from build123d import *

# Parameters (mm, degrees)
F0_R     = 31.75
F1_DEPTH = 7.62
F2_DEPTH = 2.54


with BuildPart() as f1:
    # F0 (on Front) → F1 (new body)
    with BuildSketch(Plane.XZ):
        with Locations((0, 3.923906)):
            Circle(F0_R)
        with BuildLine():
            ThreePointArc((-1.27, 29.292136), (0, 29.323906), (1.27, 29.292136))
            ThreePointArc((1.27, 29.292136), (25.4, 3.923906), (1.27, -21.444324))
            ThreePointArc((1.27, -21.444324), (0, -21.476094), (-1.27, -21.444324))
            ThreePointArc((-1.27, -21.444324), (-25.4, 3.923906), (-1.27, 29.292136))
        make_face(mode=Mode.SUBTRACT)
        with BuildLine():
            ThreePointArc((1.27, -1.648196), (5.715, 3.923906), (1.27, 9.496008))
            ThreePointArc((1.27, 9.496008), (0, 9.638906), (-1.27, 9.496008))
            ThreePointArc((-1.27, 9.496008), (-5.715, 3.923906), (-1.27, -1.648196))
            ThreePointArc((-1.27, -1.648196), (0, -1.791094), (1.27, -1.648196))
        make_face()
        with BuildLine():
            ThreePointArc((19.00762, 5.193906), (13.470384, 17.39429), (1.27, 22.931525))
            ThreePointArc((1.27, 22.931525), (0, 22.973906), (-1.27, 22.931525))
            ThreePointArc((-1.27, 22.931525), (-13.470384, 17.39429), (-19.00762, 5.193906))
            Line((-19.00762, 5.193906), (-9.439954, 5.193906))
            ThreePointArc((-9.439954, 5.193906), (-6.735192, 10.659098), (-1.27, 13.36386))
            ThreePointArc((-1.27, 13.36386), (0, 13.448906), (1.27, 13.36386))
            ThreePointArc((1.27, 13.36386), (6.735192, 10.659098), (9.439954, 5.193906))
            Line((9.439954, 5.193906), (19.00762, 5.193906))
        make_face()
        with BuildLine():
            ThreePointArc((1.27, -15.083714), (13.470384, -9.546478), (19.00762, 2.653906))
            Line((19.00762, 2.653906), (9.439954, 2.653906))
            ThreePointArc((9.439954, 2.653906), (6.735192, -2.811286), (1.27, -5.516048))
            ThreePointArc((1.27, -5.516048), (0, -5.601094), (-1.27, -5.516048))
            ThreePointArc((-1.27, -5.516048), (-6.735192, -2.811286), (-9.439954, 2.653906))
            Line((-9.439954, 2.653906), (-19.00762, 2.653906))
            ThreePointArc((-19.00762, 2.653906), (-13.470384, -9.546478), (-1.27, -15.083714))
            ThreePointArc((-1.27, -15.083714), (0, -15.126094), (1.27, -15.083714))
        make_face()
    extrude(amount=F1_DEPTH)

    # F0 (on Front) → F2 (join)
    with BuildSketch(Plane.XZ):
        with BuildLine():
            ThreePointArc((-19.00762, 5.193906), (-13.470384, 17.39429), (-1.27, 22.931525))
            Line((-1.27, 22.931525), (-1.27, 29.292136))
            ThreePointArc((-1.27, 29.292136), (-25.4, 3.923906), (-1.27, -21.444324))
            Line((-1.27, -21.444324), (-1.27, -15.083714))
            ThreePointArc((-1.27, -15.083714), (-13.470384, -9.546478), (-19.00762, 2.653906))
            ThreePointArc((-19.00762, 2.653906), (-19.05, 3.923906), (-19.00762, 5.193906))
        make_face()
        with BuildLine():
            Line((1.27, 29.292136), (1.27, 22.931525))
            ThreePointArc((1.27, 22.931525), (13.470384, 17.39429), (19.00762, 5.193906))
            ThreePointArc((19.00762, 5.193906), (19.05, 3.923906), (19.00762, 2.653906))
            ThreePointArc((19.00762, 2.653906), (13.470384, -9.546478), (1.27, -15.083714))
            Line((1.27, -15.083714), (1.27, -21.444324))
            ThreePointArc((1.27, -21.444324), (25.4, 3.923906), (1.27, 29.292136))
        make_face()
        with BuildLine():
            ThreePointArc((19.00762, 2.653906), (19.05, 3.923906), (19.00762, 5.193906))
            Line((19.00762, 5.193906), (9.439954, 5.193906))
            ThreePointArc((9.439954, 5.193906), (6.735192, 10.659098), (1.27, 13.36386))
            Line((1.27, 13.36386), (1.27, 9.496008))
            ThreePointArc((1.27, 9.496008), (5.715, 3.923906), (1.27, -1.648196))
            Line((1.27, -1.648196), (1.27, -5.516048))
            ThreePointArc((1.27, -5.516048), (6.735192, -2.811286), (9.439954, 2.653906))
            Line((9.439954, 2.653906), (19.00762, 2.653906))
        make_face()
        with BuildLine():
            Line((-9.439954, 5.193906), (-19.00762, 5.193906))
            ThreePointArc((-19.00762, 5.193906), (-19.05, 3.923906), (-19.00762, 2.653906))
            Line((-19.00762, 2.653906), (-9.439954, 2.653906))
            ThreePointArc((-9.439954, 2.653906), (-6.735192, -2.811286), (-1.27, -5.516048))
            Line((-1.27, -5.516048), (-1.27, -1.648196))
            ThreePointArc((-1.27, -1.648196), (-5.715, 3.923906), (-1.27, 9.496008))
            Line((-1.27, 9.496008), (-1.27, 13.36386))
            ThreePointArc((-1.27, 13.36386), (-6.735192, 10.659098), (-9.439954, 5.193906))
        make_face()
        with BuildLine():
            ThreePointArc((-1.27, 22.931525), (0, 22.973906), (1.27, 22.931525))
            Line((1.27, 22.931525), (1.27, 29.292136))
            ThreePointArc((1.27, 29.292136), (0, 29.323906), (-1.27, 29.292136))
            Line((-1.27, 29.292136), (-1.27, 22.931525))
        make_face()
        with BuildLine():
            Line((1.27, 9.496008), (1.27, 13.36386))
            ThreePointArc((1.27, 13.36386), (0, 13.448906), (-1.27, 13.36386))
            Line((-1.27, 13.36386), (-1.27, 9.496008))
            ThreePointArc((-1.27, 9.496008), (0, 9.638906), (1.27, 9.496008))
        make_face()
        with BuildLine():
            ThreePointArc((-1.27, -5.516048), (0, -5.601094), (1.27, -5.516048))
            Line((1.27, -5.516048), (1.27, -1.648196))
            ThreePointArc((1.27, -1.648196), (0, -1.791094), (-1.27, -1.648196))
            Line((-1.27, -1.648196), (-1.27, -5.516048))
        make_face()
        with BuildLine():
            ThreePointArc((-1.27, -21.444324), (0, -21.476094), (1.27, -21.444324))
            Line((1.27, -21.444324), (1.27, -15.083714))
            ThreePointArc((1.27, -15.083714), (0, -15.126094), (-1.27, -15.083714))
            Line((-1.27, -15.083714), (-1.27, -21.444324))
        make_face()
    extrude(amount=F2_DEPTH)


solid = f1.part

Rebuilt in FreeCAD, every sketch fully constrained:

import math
import FreeCAD as App
import Part
import Sketcher

V = App.Vector
Q = App.Units.Quantity

doc = App.newDocument("Part")
body = doc.addObject("PartDesign::Body", "Body")
body.AllowCompound = True

# Sketch on XZ plane
sketch1 = body.newObject("Sketcher::SketchObject", "Sketch")
sketch1.AttachmentSupport = (doc.getObject("XZ_Plane"), [""])
sketch1.MapMode = "FlatFace"
sketch1.addGeometry(Part.Circle(V(0, 3.923906, 0), V(0, 0, 1), 31.75), False)
sketch1.addGeometry(Part.ArcOfCircle(Part.Circle(V(0, 3.923906, 0), V(0, 0, 1), 25.4), math.radians(92.865984), math.radians(267.134016)), False)
sketch1.addGeometry(Part.ArcOfCircle(Part.Circle(V(0, 3.924011, 0), V(0, 0, 1), 25.399895), math.radians(87.134004), math.radians(92.865996)), False)
sketch1.addGeometry(Part.ArcOfCircle(Part.Circle(V(0, 3.923906, 0), V(0, 0, 1), 25.4), math.radians(-87.134016), math.radians(87.134016)), False)
sketch1.addGeometry(Part.ArcOfCircle(Part.Circle(V(0, 3.923801, 0), V(0, 0, 1), 25.399895), math.radians(-92.865996), math.radians(-87.134004)), False)
sketch1.addGeometry(Part.ArcOfCircle(Part.Circle(V(0, 3.923906, 0), V(0, 0, 1), 5.715), math.radians(-77.160415), math.radians(77.160415)), False)
sketch1.addGeometry(Part.ArcOfCircle(Part.Circle(V(0, 3.923921, 0), V(0, 0, 1), 5.714985), math.radians(77.160377), math.radians(102.839623)), False)
sketch1.addGeometry(Part.ArcOfCircle(Part.Circle(V(0, 3.923906, 0), V(0, 0, 1), 5.715), math.radians(102.839585), math.radians(257.160415)), False)
sketch1.addGeometry(Part.ArcOfCircle(Part.Circle(V(0, 3.923891, 0), V(0, 0, 1), 5.714985), math.radians(-102.839623), math.radians(-77.160377)), False)
sketch1.addGeometry(Part.ArcOfCircle(Part.Circle(V(0, 3.923905, 0), V(0, 0, 1), 19.050001), math.radians(3.822557), math.radians(86.177446)), False)
sketch1.addGeometry(Part.ArcOfCircle(Part.Circle(V(0, 3.924141, 0), V(0, 0, 1), 19.049765), math.radians(86.177399), math.radians(93.822601)), False)
sketch1.addGeometry(Part.ArcOfCircle(Part.Circle(V(0, 3.923905, 0), V(0, 0, 1), 19.050001), math.radians(93.822554), math.radians(176.177443)), False)
sketch1.addGeometry(Part.LineSegment(V(-19.00762, 5.193906, 0), V(-9.439954, 5.193906, 0)), False)
sketch1.addGeometry(Part.ArcOfCircle(Part.Circle(V(0.000002, 3.923904, 0), V(0, 0, 1), 9.525002), math.radians(97.662264), math.radians(172.337736)), False)
sketch1.addGeometry(Part.ArcOfCircle(Part.Circle(V(0, 3.923868, 0), V(0, 0, 1), 9.525038), math.radians(82.337775), math.radians(97.662225)), False)
sketch1.addGeometry(Part.ArcOfCircle(Part.Circle(V(-0.000002, 3.923904, 0), V(0, 0, 1), 9.525002), math.radians(7.662264), math.radians(82.337736)), False)
sketch1.addGeometry(Part.LineSegment(V(9.439954, 5.193906, 0), V(19.00762, 5.193906, 0)), False)
sketch1.addGeometry(Part.ArcOfCircle(Part.Circle(V(-0.000002, 3.923908, 0), V(0, 0, 1), 19.050003), math.radians(-86.177441), math.radians(-3.822559)), False)
sketch1.addGeometry(Part.LineSegment(V(19.00762, 2.653906, 0), V(9.439954, 2.653906, 0)), False)
sketch1.addGeometry(Part.ArcOfCircle(Part.Circle(V(-0.000002, 3.923908, 0), V(0, 0, 1), 9.525002), math.radians(-82.337736), math.radians(-7.662264)), False)
sketch1.addGeometry(Part.ArcOfCircle(Part.Circle(V(0, 3.923944, 0), V(0, 0, 1), 9.525038), math.radians(-97.662225), math.radians(-82.337775)), False)
sketch1.addGeometry(Part.ArcOfCircle(Part.Circle(V(0.000002, 3.923908, 0), V(0, 0, 1), 9.525002), math.radians(-172.337736), math.radians(-97.662264)), False)
sketch1.addGeometry(Part.LineSegment(V(-9.439954, 2.653906, 0), V(-19.00762, 2.653906, 0)), False)
sketch1.addGeometry(Part.ArcOfCircle(Part.Circle(V(0.000002, 3.923908, 0), V(0, 0, 1), 19.050003), math.radians(-176.177441), math.radians(-93.822559)), False)
sketch1.addGeometry(Part.ArcOfCircle(Part.Circle(V(0, 3.924119, 0), V(0, 0, 1), 19.050213), math.radians(-93.822511), math.radians(-86.177489)), False)
sketch1.addConstraint(Sketcher.Constraint("Coincident", 1, 1, 2, 2))
sketch1.addConstraint(Sketcher.Constraint("Coincident", 2, 1, 3, 2))
sketch1.addConstraint(Sketcher.Constraint("Coincident", 3, 1, 4, 2))
sketch1.addConstraint(Sketcher.Constraint("Coincident", 4, 1, 1, 2))
sketch1.addConstraint(Sketcher.Constraint("Coincident", 5, 2, 6, 1))
sketch1.addConstraint(Sketcher.Constraint("Coincident", 6, 2, 7, 1))
sketch1.addConstraint(Sketcher.Constraint("Coincident", 7, 2, 8, 1))
sketch1.addConstraint(Sketcher.Constraint("Coincident", 8, 2, 5, 1))
sketch1.addConstraint(Sketcher.Constraint("Coincident", 9, 2, 10, 1))
sketch1.addConstraint(Sketcher.Constraint("Coincident", 10, 2, 11, 1))
sketch1.addConstraint(Sketcher.Constraint("Coincident", 11, 2, 12, 1))
sketch1.addConstraint(Sketcher.Constraint("Coincident", 12, 2, 13, 2))
sketch1.addConstraint(Sketcher.Constraint("Coincident", 13, 1, 14, 2))
sketch1.addConstraint(Sketcher.Constraint("Coincident", 14, 1, 15, 2))
sketch1.addConstraint(Sketcher.Constraint("Coincident", 15, 1, 16, 1))
sketch1.addConstraint(Sketcher.Constraint("Coincident", 16, 2, 9, 1))
sketch1.addConstraint(Sketcher.Constraint("Coincident", 17, 2, 18, 1))
sketch1.addConstraint(Sketcher.Constraint("Coincident", 18, 2, 19, 2))
sketch1.addConstraint(Sketcher.Constraint("Coincident", 19, 1, 20, 2))
sketch1.addConstraint(Sketcher.Constraint("Coincident", 20, 1, 21, 2))
sketch1.addConstraint(Sketcher.Constraint("Coincident", 21, 1, 22, 1))
sketch1.addConstraint(Sketcher.Constraint("Coincident", 22, 2, 23, 1))
sketch1.addConstraint(Sketcher.Constraint("Coincident", 23, 2, 24, 1))
sketch1.addConstraint(Sketcher.Constraint("Coincident", 24, 2, 17, 1))
sketch1.addConstraint(Sketcher.Constraint("Horizontal", 12))
sketch1.addConstraint(Sketcher.Constraint("Horizontal", 16))
sketch1.addConstraint(Sketcher.Constraint("Horizontal", 18))
sketch1.addConstraint(Sketcher.Constraint("Horizontal", 22))
sketch1.addConstraint(Sketcher.Constraint("Coincident", 1, 3, 0, 3))
sketch1.addConstraint(Sketcher.Constraint("Coincident", 3, 3, 0, 3))
sketch1.addConstraint(Sketcher.Constraint("Coincident", 5, 3, 0, 3))
sketch1.addConstraint(Sketcher.Constraint("Coincident", 7, 3, 0, 3))
sketch1.addConstraint(Sketcher.Constraint("Coincident", 9, 3, 0, 3))
sketch1.addConstraint(Sketcher.Constraint("Coincident", 11, 3, 0, 3))
sketch1.addConstraint(Sketcher.Constraint("Coincident", 13, 3, 0, 3))
sketch1.addConstraint(Sketcher.Constraint("Coincident", 15, 3, 0, 3))
sketch1.addConstraint(Sketcher.Constraint("Coincident", 17, 3, 0, 3))
sketch1.addConstraint(Sketcher.Constraint("Coincident", 19, 3, 0, 3))
sketch1.addConstraint(Sketcher.Constraint("Coincident", 21, 3, 0, 3))
sketch1.addConstraint(Sketcher.Constraint("Coincident", 23, 3, 0, 3))
sketch1.addConstraint(Sketcher.Constraint("PointOnObject", 0, 3, -2))
sketch1.addConstraint(Sketcher.Constraint("PointOnObject", 2, 3, -2))
sketch1.addConstraint(Sketcher.Constraint("PointOnObject", 6, 3, -2))
sketch1.addConstraint(Sketcher.Constraint("PointOnObject", 10, 3, -2))
sketch1.addConstraint(Sketcher.Constraint("PointOnObject", 14, 3, -2))
sketch1.addConstraint(Sketcher.Constraint("PointOnObject", 20, 3, -2))
sketch1.addConstraint(Sketcher.Constraint("PointOnObject", 24, 3, -2))
sketch1.addConstraint(Sketcher.Constraint("Radius", 1, Q("1 in")))
sketch1.addConstraint(Sketcher.Constraint("Diameter", 0, Q("2.5 in")))
sketch1.addConstraint(Sketcher.Constraint("Radius", 9, Q("0.75 in")))
sketch1.addConstraint(Sketcher.Constraint("Radius", 17, Q("0.7500001 in")))
sketch1.addConstraint(Sketcher.Constraint("Radius", 5, Q("0.225 in")))
sketch1.addConstraint(Sketcher.Constraint("Radius", 13, Q("0.3750001 in")))
sketch1.addConstraint(Sketcher.Constraint("Radius", 19, Q("0.3750001 in")))
sketch1.addConstraint(Sketcher.Constraint("DistanceX", 1, 1, 2, 1, Q("0.1 in")))
sketch1.addConstraint(Sketcher.Constraint("DistanceX", 4, 1, 3, 1, Q("0.1 in")))
sketch1.addConstraint(Sketcher.Constraint("DistanceX", 6, 2, 5, 2, Q("0.1 in")))
sketch1.addConstraint(Sketcher.Constraint("DistanceX", 7, 2, 8, 2, Q("0.1 in")))
sketch1.addConstraint(Sketcher.Constraint("DistanceX", 1, 1, 9, 2, Q("0.1 in")))
sketch1.addConstraint(Sketcher.Constraint("DistanceX", 6, 2, 9, 2, Q("0.1 in")))
sketch1.addConstraint(Sketcher.Constraint("DistanceX", 10, 2, 9, 2, Q("0.1 in")))
sketch1.addConstraint(Sketcher.Constraint("DistanceX", 13, 1, 5, 2, Q("0.1 in")))
sketch1.addConstraint(Sketcher.Constraint("DistanceX", 13, 1, 14, 1, Q("0.1 in")))
sketch1.addConstraint(Sketcher.Constraint("DistanceY", 17, 2, 16, 2, Q("0.1 in")))
sketch1.addConstraint(Sketcher.Constraint("DistanceX", 7, 2, 19, 1, Q("0.1 in")))
sketch1.addConstraint(Sketcher.Constraint("DistanceX", 20, 1, 19, 1, Q("0.1 in")))
sketch1.addConstraint(Sketcher.Constraint("DistanceY", 21, 1, 12, 2, Q("0.1 in")))
sketch1.addConstraint(Sketcher.Constraint("DistanceX", 23, 2, 3, 1, Q("0.1 in")))
sketch1.addConstraint(Sketcher.Constraint("DistanceX", 23, 2, 19, 1, Q("0.1 in")))
sketch1.addConstraint(Sketcher.Constraint("DistanceX", 23, 2, 24, 2, Q("0.1 in")))
sketch1.addConstraint(Sketcher.Constraint("DistanceX", 1, 1, -1, 1, Q("0.05 in")))
sketch1.addConstraint(Sketcher.Constraint("DistanceX", -1, 1, 3, 1, Q("0.05 in")))
sketch1.addConstraint(Sketcher.Constraint("Radius", 14, 9.525038))
sketch1.addConstraint(Sketcher.Constraint("Radius", 20, 9.525038))
sketch1.addConstraint(Sketcher.Constraint("Radius", 2, 25.399895))
sketch1.addConstraint(Sketcher.Constraint("Radius", 4, 25.399895))
sketch1.addConstraint(Sketcher.Constraint("Radius", 6, 5.714985))
sketch1.addConstraint(Sketcher.Constraint("Radius", 8, 5.714985))
sketch1.addConstraint(Sketcher.Constraint("Radius", 10, 19.049765))
sketch1.addConstraint(Sketcher.Constraint("Radius", 24, 19.050213))
sketch1.addConstraint(Sketcher.Constraint("DistanceY", -1, 1, 4, 3, 3.923801))
sketch1.addConstraint(Sketcher.Constraint("DistanceY", 7, 2, 11, 2, 6.842102))
sketch1.addConstraint(Sketcher.Constraint("DistanceY", 15, 1, 5, 2, 4.302102))
pad1 = body.newObject("PartDesign::Pad", "Pad")
pad1.Profile = sketch1
pad1.Length = Q("0.3 in")

# Sketch on XZ plane
sketch2 = body.newObject("Sketcher::SketchObject", "Sketch001")
sketch2.AttachmentSupport = (doc.getObject("XZ_Plane"), [""])
sketch2.MapMode = "FlatFace"
sketch2.addGeometry(Part.ArcOfCircle(Part.Circle(V(0, 3.923906, 0), V(0, 0, 1), 25.4), math.radians(-87.134016), math.radians(87.134016)), False)
sketch2.addGeometry(Part.ArcOfCircle(Part.Circle(V(0, 3.924011, 0), V(0, 0, 1), 25.399895), math.radians(87.134004), math.radians(92.865996)), False)
sketch2.addGeometry(Part.ArcOfCircle(Part.Circle(V(0, 3.923906, 0), V(0, 0, 1), 25.4), math.radians(92.865984), math.radians(267.134016)), False)
sketch2.addGeometry(Part.ArcOfCircle(Part.Circle(V(0, 3.923801, 0), V(0, 0, 1), 25.399895), math.radians(-92.865996), math.radians(-87.134004)), False)
sketch2.addGeometry(Part.ArcOfCircle(Part.Circle(V(0, 3.923905, 0), V(0, 0, 1), 19.050001), math.radians(93.822554), math.radians(176.177443)), False)
sketch2.addGeometry(Part.ArcOfCircle(Part.Circle(V(0, 3.924141, 0), V(0, 0, 1), 19.049765), math.radians(86.177399), math.radians(93.822601)), False)
sketch2.addGeometry(Part.ArcOfCircle(Part.Circle(V(0, 3.923905, 0), V(0, 0, 1), 19.050001), math.radians(3.822557), math.radians(86.177446)), False)
sketch2.addGeometry(Part.LineSegment(V(19.00762, 5.193906, 0), V(9.439954, 5.193906, 0)), False)
sketch2.addGeometry(Part.ArcOfCircle(Part.Circle(V(-0.000002, 3.923904, 0), V(0, 0, 1), 9.525002), math.radians(7.662264), math.radians(82.337736)), False)
sketch2.addGeometry(Part.ArcOfCircle(Part.Circle(V(0, 3.923868, 0), V(0, 0, 1), 9.525038), math.radians(82.337775), math.radians(97.662225)), False)
sketch2.addGeometry(Part.ArcOfCircle(Part.Circle(V(0.000002, 3.923904, 0), V(0, 0, 1), 9.525002), math.radians(97.662264), math.radians(172.337736)), False)
sketch2.addGeometry(Part.LineSegment(V(-9.439954, 5.193906, 0), V(-19.00762, 5.193906, 0)), False)
sketch2.addGeometry(Part.ArcOfCircle(Part.Circle(V(0, 3.923906, 0), V(0, 0, 1), 5.715), math.radians(-77.160415), math.radians(77.160415)), False)
sketch2.addGeometry(Part.ArcOfCircle(Part.Circle(V(0, 3.923891, 0), V(0, 0, 1), 5.714985), math.radians(-102.839623), math.radians(-77.160377)), False)
sketch2.addGeometry(Part.ArcOfCircle(Part.Circle(V(0, 3.923906, 0), V(0, 0, 1), 5.715), math.radians(102.839585), math.radians(257.160415)), False)
sketch2.addGeometry(Part.ArcOfCircle(Part.Circle(V(0, 3.923921, 0), V(0, 0, 1), 5.714985), math.radians(77.160377), math.radians(102.839623)), False)
sketch2.addGeometry(Part.ArcOfCircle(Part.Circle(V(-0.000002, 3.923908, 0), V(0, 0, 1), 9.525002), math.radians(-82.337736), math.radians(-7.662264)), False)
sketch2.addGeometry(Part.LineSegment(V(9.439954, 2.653906, 0), V(19.00762, 2.653906, 0)), False)
sketch2.addGeometry(Part.ArcOfCircle(Part.Circle(V(-0.000002, 3.923908, 0), V(0, 0, 1), 19.050003), math.radians(-86.177441), math.radians(-3.822559)), False)
sketch2.addGeometry(Part.ArcOfCircle(Part.Circle(V(0, 3.924119, 0), V(0, 0, 1), 19.050213), math.radians(-93.822511), math.radians(-86.177489)), False)
sketch2.addGeometry(Part.ArcOfCircle(Part.Circle(V(0.000002, 3.923908, 0), V(0, 0, 1), 19.050003), math.radians(-176.177441), math.radians(-93.822559)), False)
sketch2.addGeometry(Part.LineSegment(V(-19.00762, 2.653906, 0), V(-9.439954, 2.653906, 0)), False)
sketch2.addGeometry(Part.ArcOfCircle(Part.Circle(V(0.000002, 3.923908, 0), V(0, 0, 1), 9.525002), math.radians(-172.337736), math.radians(-97.662264)), False)
sketch2.addGeometry(Part.ArcOfCircle(Part.Circle(V(0, 3.923944, 0), V(0, 0, 1), 9.525038), math.radians(-97.662225), math.radians(-82.337775)), False)
sketch2.addConstraint(Sketcher.Constraint("Coincident", 0, 2, 1, 1))
sketch2.addConstraint(Sketcher.Constraint("Coincident", 1, 2, 2, 1))
sketch2.addConstraint(Sketcher.Constraint("Coincident", 2, 2, 3, 1))
sketch2.addConstraint(Sketcher.Constraint("Coincident", 3, 2, 0, 1))
sketch2.addConstraint(Sketcher.Constraint("Coincident", 4, 1, 5, 2))
sketch2.addConstraint(Sketcher.Constraint("Coincident", 5, 1, 6, 2))
sketch2.addConstraint(Sketcher.Constraint("Coincident", 6, 1, 7, 1))
sketch2.addConstraint(Sketcher.Constraint("Coincident", 7, 2, 8, 1))
sketch2.addConstraint(Sketcher.Constraint("Coincident", 8, 2, 9, 1))
sketch2.addConstraint(Sketcher.Constraint("Coincident", 9, 2, 10, 1))
sketch2.addConstraint(Sketcher.Constraint("Coincident", 10, 2, 11, 1))
sketch2.addConstraint(Sketcher.Constraint("Coincident", 11, 2, 4, 2))
sketch2.addConstraint(Sketcher.Constraint("Coincident", 12, 1, 13, 2))
sketch2.addConstraint(Sketcher.Constraint("Coincident", 13, 1, 14, 2))
sketch2.addConstraint(Sketcher.Constraint("Coincident", 14, 1, 15, 2))
sketch2.addConstraint(Sketcher.Constraint("Coincident", 15, 1, 12, 2))
sketch2.addConstraint(Sketcher.Constraint("Coincident", 16, 2, 17, 1))
sketch2.addConstraint(Sketcher.Constraint("Coincident", 17, 2, 18, 2))
sketch2.addConstraint(Sketcher.Constraint("Coincident", 18, 1, 19, 2))
sketch2.addConstraint(Sketcher.Constraint("Coincident", 19, 1, 20, 2))
sketch2.addConstraint(Sketcher.Constraint("Coincident", 20, 1, 21, 1))
sketch2.addConstraint(Sketcher.Constraint("Coincident", 21, 2, 22, 1))
sketch2.addConstraint(Sketcher.Constraint("Coincident", 22, 2, 23, 1))
sketch2.addConstraint(Sketcher.Constraint("Coincident", 23, 2, 16, 1))
sketch2.addConstraint(Sketcher.Constraint("Horizontal", 7))
sketch2.addConstraint(Sketcher.Constraint("Horizontal", 11))
sketch2.addConstraint(Sketcher.Constraint("Horizontal", 17))
sketch2.addConstraint(Sketcher.Constraint("Horizontal", 21))
sketch2.addConstraint(Sketcher.Constraint("Coincident", 2, 3, 0, 3))
sketch2.addConstraint(Sketcher.Constraint("Coincident", 4, 3, 0, 3))
sketch2.addConstraint(Sketcher.Constraint("Coincident", 6, 3, 0, 3))
sketch2.addConstraint(Sketcher.Constraint("Coincident", 8, 3, 0, 3))
sketch2.addConstraint(Sketcher.Constraint("Coincident", 10, 3, 0, 3))
sketch2.addConstraint(Sketcher.Constraint("Coincident", 12, 3, 0, 3))
sketch2.addConstraint(Sketcher.Constraint("Coincident", 14, 3, 0, 3))
sketch2.addConstraint(Sketcher.Constraint("Coincident", 16, 3, 0, 3))
sketch2.addConstraint(Sketcher.Constraint("Coincident", 18, 3, 0, 3))
sketch2.addConstraint(Sketcher.Constraint("Coincident", 20, 3, 0, 3))
sketch2.addConstraint(Sketcher.Constraint("Coincident", 22, 3, 0, 3))
sketch2.addConstraint(Sketcher.Constraint("PointOnObject", 0, 3, -2))
sketch2.addConstraint(Sketcher.Constraint("PointOnObject", 1, 3, -2))
sketch2.addConstraint(Sketcher.Constraint("PointOnObject", 5, 3, -2))
sketch2.addConstraint(Sketcher.Constraint("PointOnObject", 9, 3, -2))
sketch2.addConstraint(Sketcher.Constraint("PointOnObject", 13, 3, -2))
sketch2.addConstraint(Sketcher.Constraint("PointOnObject", 19, 3, -2))
sketch2.addConstraint(Sketcher.Constraint("PointOnObject", 23, 3, -2))
sketch2.addConstraint(Sketcher.Constraint("Radius", 0, Q("1 in")))
sketch2.addConstraint(Sketcher.Constraint("Radius", 4, Q("0.75 in")))
sketch2.addConstraint(Sketcher.Constraint("Radius", 18, Q("0.7500001 in")))
sketch2.addConstraint(Sketcher.Constraint("Radius", 8, Q("0.3750001 in")))
sketch2.addConstraint(Sketcher.Constraint("Radius", 12, Q("0.225 in")))
sketch2.addConstraint(Sketcher.Constraint("Radius", 16, Q("0.3750001 in")))
sketch2.addConstraint(Sketcher.Constraint("DistanceX", 1, 2, 0, 2, Q("0.1 in")))
sketch2.addConstraint(Sketcher.Constraint("DistanceX", 2, 2, 3, 2, Q("0.1 in")))
sketch2.addConstraint(Sketcher.Constraint("DistanceX", 4, 1, 0, 2, Q("0.1 in")))
sketch2.addConstraint(Sketcher.Constraint("DistanceX", 4, 1, 5, 1, Q("0.1 in")))
sketch2.addConstraint(Sketcher.Constraint("DistanceX", 9, 2, 8, 2, Q("0.1 in")))
sketch2.addConstraint(Sketcher.Constraint("DistanceX", 13, 1, 12, 1, Q("0.1 in")))
sketch2.addConstraint(Sketcher.Constraint("DistanceX", 14, 1, 8, 2, Q("0.1 in")))
sketch2.addConstraint(Sketcher.Constraint("DistanceX", 14, 1, 15, 1, Q("0.1 in")))
sketch2.addConstraint(Sketcher.Constraint("DistanceY", 16, 2, 7, 2, Q("0.1 in")))
sketch2.addConstraint(Sketcher.Constraint("DistanceX", 2, 2, 18, 1, Q("0.1 in")))
sketch2.addConstraint(Sketcher.Constraint("DistanceX", 13, 1, 18, 1, Q("0.1 in")))
sketch2.addConstraint(Sketcher.Constraint("DistanceX", 19, 1, 18, 1, Q("0.1 in")))
sketch2.addConstraint(Sketcher.Constraint("DistanceY", 20, 1, 11, 2, Q("0.1 in")))
sketch2.addConstraint(Sketcher.Constraint("DistanceX", 22, 2, 12, 1, Q("0.1 in")))
sketch2.addConstraint(Sketcher.Constraint("DistanceX", 22, 2, 23, 2, Q("0.1 in")))
sketch2.addConstraint(Sketcher.Constraint("DistanceX", -1, 1, 0, 2, Q("0.05 in")))
sketch2.addConstraint(Sketcher.Constraint("DistanceX", 2, 2, -1, 1, Q("0.05 in")))
sketch2.addConstraint(Sketcher.Constraint("DistanceX", -1, 1, 8, 2, Q("0.05 in")))
sketch2.addConstraint(Sketcher.Constraint("DistanceY", 20, 3, 6, 1, Q("0.0499999 in")))
sketch2.addConstraint(Sketcher.Constraint("DistanceY", 18, 3, 10, 2, Q("0.0499999 in")))
sketch2.addConstraint(Sketcher.Constraint("Radius", 9, 9.525038))
sketch2.addConstraint(Sketcher.Constraint("Radius", 23, 9.525038))
sketch2.addConstraint(Sketcher.Constraint("Radius", 1, 25.399895))
sketch2.addConstraint(Sketcher.Constraint("Radius", 3, 25.399895))
sketch2.addConstraint(Sketcher.Constraint("Radius", 5, 19.049765))
sketch2.addConstraint(Sketcher.Constraint("Radius", 13, 5.714985))
sketch2.addConstraint(Sketcher.Constraint("Radius", 15, 5.714985))
sketch2.addConstraint(Sketcher.Constraint("Radius", 19, 19.050213))
sketch2.addConstraint(Sketcher.Constraint("DistanceY", -1, 1, 3, 3, 3.923801))
pad2 = body.newObject("PartDesign::Pad", "Pad001")
pad2.Profile = sketch2
pad2.Length = Q("0.1 in")

doc.recompute()
